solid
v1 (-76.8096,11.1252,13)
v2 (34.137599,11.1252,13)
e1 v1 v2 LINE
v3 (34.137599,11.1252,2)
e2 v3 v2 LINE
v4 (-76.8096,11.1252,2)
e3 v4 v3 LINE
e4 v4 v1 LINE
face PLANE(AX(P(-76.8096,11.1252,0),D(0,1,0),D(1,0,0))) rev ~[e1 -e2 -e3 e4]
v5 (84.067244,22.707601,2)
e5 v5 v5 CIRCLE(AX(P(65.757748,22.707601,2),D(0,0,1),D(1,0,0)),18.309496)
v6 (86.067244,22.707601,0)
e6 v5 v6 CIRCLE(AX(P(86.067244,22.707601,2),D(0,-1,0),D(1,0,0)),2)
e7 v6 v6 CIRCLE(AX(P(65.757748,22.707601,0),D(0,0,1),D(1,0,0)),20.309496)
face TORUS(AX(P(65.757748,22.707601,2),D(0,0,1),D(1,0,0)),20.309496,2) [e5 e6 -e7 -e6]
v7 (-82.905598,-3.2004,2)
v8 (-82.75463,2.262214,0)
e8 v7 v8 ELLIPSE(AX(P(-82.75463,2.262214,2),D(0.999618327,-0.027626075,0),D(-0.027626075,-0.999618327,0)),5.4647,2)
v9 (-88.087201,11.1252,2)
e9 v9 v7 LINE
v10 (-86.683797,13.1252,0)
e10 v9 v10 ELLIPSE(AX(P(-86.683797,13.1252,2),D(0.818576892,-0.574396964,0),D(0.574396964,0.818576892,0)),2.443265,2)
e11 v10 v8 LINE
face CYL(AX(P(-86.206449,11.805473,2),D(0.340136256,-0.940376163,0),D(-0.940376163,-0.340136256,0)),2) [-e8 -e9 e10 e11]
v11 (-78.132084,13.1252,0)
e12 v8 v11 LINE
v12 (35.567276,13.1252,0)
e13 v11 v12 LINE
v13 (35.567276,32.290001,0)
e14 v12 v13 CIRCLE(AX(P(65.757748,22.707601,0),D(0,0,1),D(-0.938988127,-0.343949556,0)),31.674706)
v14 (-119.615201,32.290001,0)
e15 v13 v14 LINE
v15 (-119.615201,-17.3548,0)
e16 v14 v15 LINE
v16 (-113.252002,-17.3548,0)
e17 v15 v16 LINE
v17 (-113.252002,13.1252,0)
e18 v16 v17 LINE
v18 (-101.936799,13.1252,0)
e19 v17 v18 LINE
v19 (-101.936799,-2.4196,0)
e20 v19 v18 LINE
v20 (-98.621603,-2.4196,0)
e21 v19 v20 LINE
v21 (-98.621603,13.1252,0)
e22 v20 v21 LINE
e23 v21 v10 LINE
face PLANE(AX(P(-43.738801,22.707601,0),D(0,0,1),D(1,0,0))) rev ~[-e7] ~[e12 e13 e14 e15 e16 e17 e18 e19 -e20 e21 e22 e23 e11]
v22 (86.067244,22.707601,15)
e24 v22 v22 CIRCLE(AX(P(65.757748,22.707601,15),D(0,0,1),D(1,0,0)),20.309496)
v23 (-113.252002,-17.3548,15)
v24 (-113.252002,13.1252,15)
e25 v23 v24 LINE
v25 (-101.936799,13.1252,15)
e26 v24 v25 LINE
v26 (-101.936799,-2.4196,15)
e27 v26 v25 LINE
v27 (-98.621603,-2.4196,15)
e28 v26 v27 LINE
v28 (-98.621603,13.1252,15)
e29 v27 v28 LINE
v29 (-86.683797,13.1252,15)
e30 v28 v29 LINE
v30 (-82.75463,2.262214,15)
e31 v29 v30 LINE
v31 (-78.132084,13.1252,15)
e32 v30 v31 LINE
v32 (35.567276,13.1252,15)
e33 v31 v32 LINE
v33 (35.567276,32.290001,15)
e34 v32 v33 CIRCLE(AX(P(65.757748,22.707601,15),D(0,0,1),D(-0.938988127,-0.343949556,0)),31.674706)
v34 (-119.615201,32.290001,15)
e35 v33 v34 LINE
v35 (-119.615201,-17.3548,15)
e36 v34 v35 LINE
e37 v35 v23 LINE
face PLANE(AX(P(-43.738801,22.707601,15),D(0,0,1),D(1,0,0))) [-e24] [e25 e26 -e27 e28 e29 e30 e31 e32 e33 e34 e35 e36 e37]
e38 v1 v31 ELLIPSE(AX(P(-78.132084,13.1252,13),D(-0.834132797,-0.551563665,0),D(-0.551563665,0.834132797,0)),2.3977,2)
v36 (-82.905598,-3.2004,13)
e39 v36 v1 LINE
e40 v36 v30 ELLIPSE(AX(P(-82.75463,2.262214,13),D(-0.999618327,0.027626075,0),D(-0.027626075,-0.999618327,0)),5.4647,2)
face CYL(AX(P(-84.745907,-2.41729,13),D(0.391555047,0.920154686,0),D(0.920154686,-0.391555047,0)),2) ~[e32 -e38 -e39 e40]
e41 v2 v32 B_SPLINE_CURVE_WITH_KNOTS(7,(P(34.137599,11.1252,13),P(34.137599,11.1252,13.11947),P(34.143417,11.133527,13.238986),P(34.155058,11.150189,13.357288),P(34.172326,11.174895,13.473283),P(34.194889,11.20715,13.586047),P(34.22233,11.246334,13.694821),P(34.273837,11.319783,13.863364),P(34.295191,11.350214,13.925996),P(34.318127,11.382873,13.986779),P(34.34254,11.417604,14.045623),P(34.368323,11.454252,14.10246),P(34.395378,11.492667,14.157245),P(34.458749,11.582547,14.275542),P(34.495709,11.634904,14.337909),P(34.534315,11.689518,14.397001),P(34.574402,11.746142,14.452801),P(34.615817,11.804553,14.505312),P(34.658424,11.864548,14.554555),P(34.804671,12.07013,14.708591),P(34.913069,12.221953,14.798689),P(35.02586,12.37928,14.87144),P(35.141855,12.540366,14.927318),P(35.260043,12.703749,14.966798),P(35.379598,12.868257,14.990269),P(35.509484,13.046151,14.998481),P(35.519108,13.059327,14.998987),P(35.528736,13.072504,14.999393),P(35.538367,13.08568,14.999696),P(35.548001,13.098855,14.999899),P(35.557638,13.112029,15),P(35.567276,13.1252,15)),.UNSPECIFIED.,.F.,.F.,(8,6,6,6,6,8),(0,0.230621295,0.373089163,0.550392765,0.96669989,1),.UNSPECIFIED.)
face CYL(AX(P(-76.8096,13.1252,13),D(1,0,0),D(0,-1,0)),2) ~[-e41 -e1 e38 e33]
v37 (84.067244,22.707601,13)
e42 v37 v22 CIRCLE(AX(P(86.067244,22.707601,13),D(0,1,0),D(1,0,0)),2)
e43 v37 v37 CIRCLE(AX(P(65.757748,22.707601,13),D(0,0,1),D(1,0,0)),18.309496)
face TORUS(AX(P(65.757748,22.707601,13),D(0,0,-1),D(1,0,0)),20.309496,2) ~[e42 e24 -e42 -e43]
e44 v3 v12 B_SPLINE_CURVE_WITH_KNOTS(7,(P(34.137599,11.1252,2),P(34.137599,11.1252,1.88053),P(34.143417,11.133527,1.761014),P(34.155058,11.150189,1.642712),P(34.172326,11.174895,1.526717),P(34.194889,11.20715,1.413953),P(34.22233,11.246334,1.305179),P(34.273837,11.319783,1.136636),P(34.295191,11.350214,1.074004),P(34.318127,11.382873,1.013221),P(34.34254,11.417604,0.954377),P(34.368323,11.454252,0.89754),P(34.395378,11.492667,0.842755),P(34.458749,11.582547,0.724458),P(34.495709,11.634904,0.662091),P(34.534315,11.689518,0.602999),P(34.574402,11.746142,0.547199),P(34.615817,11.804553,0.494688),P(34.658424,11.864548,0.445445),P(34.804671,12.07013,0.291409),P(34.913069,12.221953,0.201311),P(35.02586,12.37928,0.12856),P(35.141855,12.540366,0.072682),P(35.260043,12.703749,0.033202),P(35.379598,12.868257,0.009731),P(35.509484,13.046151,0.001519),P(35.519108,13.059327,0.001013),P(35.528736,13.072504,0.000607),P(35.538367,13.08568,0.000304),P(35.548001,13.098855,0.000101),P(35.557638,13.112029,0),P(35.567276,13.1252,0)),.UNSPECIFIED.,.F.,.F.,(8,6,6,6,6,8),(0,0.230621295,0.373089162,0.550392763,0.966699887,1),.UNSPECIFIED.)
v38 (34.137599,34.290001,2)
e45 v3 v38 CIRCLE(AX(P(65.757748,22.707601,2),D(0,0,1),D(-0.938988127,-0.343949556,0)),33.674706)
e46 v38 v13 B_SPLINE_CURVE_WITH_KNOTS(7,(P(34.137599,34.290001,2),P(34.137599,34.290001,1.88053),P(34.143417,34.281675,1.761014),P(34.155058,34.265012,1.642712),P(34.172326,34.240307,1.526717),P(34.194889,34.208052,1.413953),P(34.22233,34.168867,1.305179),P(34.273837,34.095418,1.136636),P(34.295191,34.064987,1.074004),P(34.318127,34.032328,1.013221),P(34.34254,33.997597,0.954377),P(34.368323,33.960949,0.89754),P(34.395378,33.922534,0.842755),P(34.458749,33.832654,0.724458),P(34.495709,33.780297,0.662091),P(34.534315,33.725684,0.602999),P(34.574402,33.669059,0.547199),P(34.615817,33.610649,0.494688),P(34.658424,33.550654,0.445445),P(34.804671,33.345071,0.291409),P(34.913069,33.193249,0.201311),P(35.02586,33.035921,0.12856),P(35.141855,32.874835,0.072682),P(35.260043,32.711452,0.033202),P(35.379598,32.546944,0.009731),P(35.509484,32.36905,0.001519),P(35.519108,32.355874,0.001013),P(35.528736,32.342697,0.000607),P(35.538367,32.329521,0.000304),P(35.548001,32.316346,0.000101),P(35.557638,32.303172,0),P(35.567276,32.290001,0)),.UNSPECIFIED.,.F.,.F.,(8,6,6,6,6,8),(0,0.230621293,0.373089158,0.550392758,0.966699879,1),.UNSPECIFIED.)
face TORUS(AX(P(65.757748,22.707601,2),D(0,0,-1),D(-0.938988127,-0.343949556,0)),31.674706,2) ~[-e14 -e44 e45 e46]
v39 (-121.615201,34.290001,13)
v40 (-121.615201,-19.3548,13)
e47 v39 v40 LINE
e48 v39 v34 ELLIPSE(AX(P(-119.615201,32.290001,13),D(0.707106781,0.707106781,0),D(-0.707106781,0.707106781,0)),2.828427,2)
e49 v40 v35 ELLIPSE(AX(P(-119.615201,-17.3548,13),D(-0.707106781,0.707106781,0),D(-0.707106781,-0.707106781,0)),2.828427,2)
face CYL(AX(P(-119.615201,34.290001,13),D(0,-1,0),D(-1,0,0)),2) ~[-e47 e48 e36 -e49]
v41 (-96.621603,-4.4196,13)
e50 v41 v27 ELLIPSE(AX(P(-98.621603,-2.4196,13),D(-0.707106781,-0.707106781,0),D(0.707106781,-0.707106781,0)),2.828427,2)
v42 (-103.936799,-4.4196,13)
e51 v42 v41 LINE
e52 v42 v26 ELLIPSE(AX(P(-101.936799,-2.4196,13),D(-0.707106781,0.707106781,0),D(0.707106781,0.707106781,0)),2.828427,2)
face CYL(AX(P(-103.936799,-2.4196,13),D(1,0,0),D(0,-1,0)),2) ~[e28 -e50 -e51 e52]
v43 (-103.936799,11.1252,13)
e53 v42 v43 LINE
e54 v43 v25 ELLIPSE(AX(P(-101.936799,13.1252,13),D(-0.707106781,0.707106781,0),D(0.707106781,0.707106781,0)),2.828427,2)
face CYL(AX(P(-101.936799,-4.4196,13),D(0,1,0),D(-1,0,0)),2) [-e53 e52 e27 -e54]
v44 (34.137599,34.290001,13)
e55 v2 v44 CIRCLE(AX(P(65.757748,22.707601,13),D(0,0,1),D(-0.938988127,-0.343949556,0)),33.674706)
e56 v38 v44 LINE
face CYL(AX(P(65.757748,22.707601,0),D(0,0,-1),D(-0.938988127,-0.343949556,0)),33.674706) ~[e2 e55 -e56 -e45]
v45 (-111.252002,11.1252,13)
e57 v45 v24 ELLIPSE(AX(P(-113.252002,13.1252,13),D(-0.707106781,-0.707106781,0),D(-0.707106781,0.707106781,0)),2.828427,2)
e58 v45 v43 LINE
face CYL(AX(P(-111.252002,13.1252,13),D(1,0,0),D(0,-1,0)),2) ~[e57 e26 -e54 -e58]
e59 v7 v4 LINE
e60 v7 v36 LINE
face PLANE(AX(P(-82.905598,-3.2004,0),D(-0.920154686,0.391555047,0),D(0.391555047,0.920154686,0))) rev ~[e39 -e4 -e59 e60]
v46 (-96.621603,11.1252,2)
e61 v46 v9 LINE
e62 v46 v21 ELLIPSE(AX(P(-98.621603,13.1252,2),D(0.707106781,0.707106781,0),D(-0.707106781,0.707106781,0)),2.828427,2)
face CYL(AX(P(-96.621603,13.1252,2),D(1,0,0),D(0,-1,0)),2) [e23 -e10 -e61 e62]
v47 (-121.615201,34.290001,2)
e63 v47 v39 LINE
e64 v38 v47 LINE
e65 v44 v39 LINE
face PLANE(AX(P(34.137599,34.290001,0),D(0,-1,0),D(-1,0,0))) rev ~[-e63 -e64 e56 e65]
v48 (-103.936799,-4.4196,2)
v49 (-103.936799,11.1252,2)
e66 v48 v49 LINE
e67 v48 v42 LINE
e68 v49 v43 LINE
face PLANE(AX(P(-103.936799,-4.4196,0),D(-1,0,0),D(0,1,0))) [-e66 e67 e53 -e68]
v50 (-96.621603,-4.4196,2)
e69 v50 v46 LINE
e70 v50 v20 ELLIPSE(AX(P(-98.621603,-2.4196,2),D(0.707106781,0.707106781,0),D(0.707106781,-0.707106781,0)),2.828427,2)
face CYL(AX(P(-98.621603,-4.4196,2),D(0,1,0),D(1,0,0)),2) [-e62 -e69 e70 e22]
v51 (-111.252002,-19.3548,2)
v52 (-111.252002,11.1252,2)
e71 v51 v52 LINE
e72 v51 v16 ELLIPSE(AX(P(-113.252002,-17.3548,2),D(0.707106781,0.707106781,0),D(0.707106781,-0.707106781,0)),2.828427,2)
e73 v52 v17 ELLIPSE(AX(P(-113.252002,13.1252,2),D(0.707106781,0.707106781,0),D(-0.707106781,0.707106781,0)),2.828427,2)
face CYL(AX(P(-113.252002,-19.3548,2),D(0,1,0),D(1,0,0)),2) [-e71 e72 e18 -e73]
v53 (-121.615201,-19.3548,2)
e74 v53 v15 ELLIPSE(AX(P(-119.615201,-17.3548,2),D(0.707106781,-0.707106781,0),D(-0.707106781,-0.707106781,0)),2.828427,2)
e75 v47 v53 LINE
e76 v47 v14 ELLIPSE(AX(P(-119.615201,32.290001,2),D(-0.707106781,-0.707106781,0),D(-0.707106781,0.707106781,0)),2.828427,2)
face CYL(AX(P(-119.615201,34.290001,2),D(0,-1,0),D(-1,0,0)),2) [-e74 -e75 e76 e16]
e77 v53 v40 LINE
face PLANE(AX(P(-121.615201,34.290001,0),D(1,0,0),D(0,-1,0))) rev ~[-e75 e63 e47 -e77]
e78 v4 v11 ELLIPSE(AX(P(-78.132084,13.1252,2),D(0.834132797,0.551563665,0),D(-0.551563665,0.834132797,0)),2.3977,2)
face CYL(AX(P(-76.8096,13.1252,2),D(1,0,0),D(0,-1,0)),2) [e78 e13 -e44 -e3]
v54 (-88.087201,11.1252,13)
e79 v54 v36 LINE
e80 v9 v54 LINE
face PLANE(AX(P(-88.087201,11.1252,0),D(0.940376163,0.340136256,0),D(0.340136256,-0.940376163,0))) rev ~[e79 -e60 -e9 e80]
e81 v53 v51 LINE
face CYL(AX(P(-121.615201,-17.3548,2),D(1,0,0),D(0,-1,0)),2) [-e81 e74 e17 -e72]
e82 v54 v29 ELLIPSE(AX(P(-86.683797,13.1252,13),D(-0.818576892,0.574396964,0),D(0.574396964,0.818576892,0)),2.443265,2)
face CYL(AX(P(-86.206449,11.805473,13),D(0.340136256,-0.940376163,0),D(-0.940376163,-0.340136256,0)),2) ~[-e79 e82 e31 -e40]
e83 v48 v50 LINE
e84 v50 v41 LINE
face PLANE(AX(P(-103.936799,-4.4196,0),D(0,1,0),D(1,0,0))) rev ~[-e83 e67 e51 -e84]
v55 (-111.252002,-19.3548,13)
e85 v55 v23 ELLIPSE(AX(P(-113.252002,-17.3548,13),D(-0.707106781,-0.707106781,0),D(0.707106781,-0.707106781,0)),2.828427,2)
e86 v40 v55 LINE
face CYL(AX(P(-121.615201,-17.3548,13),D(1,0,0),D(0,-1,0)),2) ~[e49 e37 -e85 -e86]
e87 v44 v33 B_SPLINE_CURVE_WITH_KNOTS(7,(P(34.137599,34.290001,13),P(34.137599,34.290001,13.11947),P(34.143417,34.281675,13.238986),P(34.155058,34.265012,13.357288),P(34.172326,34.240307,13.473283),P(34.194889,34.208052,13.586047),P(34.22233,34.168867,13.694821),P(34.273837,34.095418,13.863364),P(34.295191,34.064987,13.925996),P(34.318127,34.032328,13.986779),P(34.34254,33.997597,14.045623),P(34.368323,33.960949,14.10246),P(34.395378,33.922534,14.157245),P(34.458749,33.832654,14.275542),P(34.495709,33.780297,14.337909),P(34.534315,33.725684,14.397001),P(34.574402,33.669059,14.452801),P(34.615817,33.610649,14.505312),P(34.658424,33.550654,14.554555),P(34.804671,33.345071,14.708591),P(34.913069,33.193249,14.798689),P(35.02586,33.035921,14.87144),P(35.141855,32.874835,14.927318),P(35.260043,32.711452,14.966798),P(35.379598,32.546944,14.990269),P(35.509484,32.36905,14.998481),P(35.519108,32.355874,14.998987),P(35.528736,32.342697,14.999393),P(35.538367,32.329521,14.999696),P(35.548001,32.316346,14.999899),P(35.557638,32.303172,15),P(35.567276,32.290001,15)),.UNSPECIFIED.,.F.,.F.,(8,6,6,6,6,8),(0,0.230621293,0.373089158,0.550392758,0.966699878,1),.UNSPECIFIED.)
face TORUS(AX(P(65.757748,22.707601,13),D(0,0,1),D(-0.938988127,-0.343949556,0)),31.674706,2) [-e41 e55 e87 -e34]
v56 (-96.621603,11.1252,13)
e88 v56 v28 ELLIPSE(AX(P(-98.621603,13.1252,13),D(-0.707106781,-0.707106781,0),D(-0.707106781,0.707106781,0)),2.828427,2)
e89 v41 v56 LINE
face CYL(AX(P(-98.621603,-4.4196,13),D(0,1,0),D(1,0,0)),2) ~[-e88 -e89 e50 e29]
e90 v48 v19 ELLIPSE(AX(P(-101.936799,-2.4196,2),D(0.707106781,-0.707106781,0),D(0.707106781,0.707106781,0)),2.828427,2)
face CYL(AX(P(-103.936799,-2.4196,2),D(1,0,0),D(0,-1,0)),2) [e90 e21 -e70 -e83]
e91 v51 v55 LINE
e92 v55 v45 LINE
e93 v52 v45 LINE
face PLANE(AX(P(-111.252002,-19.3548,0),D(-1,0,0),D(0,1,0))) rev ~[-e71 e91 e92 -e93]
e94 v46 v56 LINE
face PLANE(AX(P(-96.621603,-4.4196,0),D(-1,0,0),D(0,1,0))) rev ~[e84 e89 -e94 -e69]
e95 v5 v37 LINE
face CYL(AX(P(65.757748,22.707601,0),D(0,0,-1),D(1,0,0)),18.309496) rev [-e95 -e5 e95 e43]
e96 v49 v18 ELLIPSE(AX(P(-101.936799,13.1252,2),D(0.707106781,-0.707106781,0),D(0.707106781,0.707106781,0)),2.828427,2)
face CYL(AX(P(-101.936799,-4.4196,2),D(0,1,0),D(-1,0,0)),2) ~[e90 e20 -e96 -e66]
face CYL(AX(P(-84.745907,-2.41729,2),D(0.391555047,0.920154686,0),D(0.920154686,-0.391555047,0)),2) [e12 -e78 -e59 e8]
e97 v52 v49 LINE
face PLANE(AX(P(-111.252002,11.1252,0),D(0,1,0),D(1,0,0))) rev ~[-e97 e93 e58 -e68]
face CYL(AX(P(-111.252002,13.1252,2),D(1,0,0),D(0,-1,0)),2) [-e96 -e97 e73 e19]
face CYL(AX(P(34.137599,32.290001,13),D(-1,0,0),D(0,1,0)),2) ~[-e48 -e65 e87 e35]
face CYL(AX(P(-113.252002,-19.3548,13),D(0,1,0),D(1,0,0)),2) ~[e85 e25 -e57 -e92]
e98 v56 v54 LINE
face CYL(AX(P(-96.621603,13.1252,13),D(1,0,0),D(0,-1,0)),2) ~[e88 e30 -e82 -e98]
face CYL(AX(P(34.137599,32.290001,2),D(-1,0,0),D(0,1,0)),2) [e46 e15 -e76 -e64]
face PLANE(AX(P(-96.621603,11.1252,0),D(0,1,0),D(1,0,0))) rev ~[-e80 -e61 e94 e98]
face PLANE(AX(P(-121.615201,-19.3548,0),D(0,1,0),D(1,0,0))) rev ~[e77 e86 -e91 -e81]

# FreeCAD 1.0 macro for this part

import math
import FreeCAD as App
import Part
import Sketcher
Q = App.Units.Quantity


def edges_at(feature, points):
    """Names of the edges that pass closest to the given points."""
    edges = feature.Shape.Edges
    near = lambda p: min(range(len(edges)), key=lambda i: edges[i].distToShape(Part.Vertex(*p))[0])
    return sorted({f"Edge{near(p) + 1}" for p in points})

doc = App.newDocument("Part")
body = doc.addObject("PartDesign::Body", "Body")

# Sketch on XY plane
sketch1 = doc.addObject("Sketcher::SketchObject", "Sketch")
body.addObject(sketch1)
sketch1.AttachmentSupport = (doc.XY_Plane, [""])
sketch1.MapMode = "FlatFace"
sketch1.addGeometry([
    Part.LineSegment(App.Vector(34.137599, 34.290001, 0), App.Vector(-121.615201, 34.290001, 0)),  # 0
    Part.LineSegment(App.Vector(-121.615201, 34.290001, 0), App.Vector(-121.615201, -19.3548, 0)),  # 1
    Part.LineSegment(App.Vector(-121.615201, -19.3548, 0), App.Vector(-111.252002, -19.3548, 0)),  # 2
    Part.LineSegment(App.Vector(-111.252002, -19.3548, 0), App.Vector(-111.252002, 11.1252, 0)),  # 3
    Part.LineSegment(App.Vector(-111.252002, 11.1252, 0), App.Vector(-103.936799, 11.1252, 0)),  # 4
    Part.LineSegment(App.Vector(-103.936799, 11.1252, 0), App.Vector(-103.936799, -4.4196, 0)),  # 5
    Part.LineSegment(App.Vector(-103.936799, -4.4196, 0), App.Vector(-96.621603, -4.4196, 0)),  # 6
    Part.LineSegment(App.Vector(-96.621603, -4.4196, 0), App.Vector(-96.621603, 11.1252, 0)),  # 7
    Part.LineSegment(App.Vector(-96.621603, 11.1252, 0), App.Vector(-88.087201, 11.1252, 0)),  # 8
    Part.LineSegment(App.Vector(-88.087201, 11.1252, 0), App.Vector(-82.905598, -3.2004, 0)),  # 9
    Part.LineSegment(App.Vector(-82.905598, -3.2004, 0), App.Vector(-76.8096, 11.1252, 0)),  # 10
    Part.LineSegment(App.Vector(-76.8096, 11.1252, 0), App.Vector(34.137599, 11.1252, 0)),  # 11
    Part.ArcOfCircle(Part.Circle(App.Vector(65.757748, 22.707601, 0), App.Vector(0, 0, 1), 33.674706), math.radians(-159.882314), math.radians(159.882314)),  # 12
    Part.Circle(App.Vector(65.757748, 22.707601, 0), App.Vector(0, 0, 1), 18.309496),  # 13
], False)
sketch1.addConstraint([
    Sketcher.Constraint("Coincident", 0, 2, 1, 1),
    Sketcher.Constraint("Coincident", 1, 2, 2, 1),
    Sketcher.Constraint("Coincident", 2, 2, 3, 1),
    Sketcher.Constraint("Coincident", 3, 2, 4, 1),
    Sketcher.Constraint("Coincident", 4, 2, 5, 1),
    Sketcher.Constraint("Coincident", 5, 2, 6, 1),
    Sketcher.Constraint("Coincident", 6, 2, 7, 1),
    Sketcher.Constraint("Coincident", 7, 2, 8, 1),
    Sketcher.Constraint("Coincident", 8, 2, 9, 1),
    Sketcher.Constraint("Coincident", 9, 2, 10, 1),
    Sketcher.Constraint("Coincident", 10, 2, 11, 1),
    Sketcher.Constraint("Coincident", 11, 2, 12, 1),
    Sketcher.Constraint("Coincident", 12, 2, 0, 1),
    Sketcher.Constraint("Horizontal", 0),
    Sketcher.Constraint("Vertical", 1),
    Sketcher.Constraint("Horizontal", 2),
    Sketcher.Constraint("Vertical", 3),
    Sketcher.Constraint("Horizontal", 4),
    Sketcher.Constraint("Vertical", 5),
    Sketcher.Constraint("Horizontal", 6),
    Sketcher.Constraint("Vertical", 7),
    Sketcher.Constraint("Horizontal", 8),
    Sketcher.Constraint("Horizontal", 11),
    Sketcher.Constraint("Coincident", 13, 3, 12, 3),
    Sketcher.Constraint("Horizontal", 4, 2, 7, 2),
    Sketcher.Constraint("Horizontal", 8, 2, 10, 2),
    Sketcher.Constraint("Vertical", 11, 2, 12, 2),
    Sketcher.Constraint("DistanceY", 3, 1, 3, 2, Q("1.2 in")),
    Sketcher.Constraint("DistanceX", 0, 2, 0, 1, Q("6.132 in")),
    Sketcher.Constraint("DistanceX", 2, 1, 2, 2, Q("0.408 in")),
    Sketcher.Constraint("DistanceX", 4, 1, 4, 2, Q("0.2880001 in")),
    Sketcher.Constraint("DistanceX", 6, 1, 6, 2, Q("0.2879998 in")),
    Sketcher.Constraint("DistanceX", 8, 1, 8, 2, Q("0.3360001 in")),
    Sketcher.Constraint("DistanceX", 11, 1, 11, 2, Q("4.368 in")),
    Sketcher.Constraint("DistanceY", 1, 2, 1, 1, Q("2.112 in")),
    Sketcher.Constraint("DistanceY", 5, 2, 5, 1, Q("0.612 in")),
    Sketcher.Constraint("DistanceY", -1, 1, 0, 2, Q("1.35 in")),
    Sketcher.Constraint("DistanceX", 2, 2, -1, 1, Q("4.3800001 in")),
    Sketcher.Constraint("DistanceX", 6, 2, 9, 2, Q("0.5400002 in")),
    Sketcher.Constraint("DistanceY", 9, 2, -1, 1, Q("0.126 in")),
    Sketcher.Constraint("Diameter", 13, Q("36.618992 mm")),
    Sketcher.Constraint("Radius", 12, Q("33.674706 mm")),
])
pad1 = doc.addObject("PartDesign::Pad", "Pad")
body.addObject(pad1)
pad1.Profile = sketch1
pad1.Length = 15
doc.recompute()

fillet = doc.addObject("PartDesign::Fillet", "Fillet")
body.addObject(fillet)
fillet.Base = (pad1, edges_at(pad1, [
    (-43.739, 34.29, 0),
    (-121.615, 7.468, 0),
    (-116.434, -19.355, 0),
    (-111.252, -4.115, 0),
    (-107.594, 11.125, 0),
    (-103.937, 3.353, 0),
    (-100.279, -4.42, 0),
    (-96.622, 3.353, 0),
    (-92.354, 11.125, 0),
    (-85.496, 3.962, 0),
    (-79.858, 3.962, 0),
    (-21.336, 11.125, 0),
    (99.432, 22.708, 0),
    (47.448, 22.708, 0),
    (-43.739, 34.29, 15),
    (-121.615, 7.468, 15),
    (-116.434, -19.355, 15),
    (-111.252, -4.115, 15),
    (-107.594, 11.125, 15),
    (-103.937, 3.353, 15),
    (-100.279, -4.42, 15),
    (-96.622, 3.353, 15),
    (-92.354, 11.125, 15),
    (-85.496, 3.962, 15),
    (-79.858, 3.962, 15),
    (-21.336, 11.125, 15),
    (99.432, 22.708, 15),
    (47.448, 22.708, 15),
]))
fillet.Radius = 2

doc.recompute()
